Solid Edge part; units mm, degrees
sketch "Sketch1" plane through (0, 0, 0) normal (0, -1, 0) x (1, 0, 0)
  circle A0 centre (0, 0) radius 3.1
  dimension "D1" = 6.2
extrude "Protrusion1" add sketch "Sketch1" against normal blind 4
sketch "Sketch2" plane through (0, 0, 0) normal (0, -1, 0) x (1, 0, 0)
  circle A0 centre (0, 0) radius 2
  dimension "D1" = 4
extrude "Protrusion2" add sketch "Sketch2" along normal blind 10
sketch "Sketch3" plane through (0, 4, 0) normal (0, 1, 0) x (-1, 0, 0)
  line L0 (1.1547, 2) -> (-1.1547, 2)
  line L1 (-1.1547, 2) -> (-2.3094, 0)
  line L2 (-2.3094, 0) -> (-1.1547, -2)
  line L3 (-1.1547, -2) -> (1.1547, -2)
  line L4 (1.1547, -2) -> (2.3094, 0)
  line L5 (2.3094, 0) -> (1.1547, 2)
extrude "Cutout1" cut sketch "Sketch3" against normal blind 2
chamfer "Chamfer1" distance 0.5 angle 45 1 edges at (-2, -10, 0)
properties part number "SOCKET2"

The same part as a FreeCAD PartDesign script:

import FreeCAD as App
import Part
import Sketcher

V = App.Vector
Q = App.Units.Quantity


def edges_at(feature, points):
    """Names of the edges that pass closest to the given points."""
    edges = feature.Shape.Edges
    near = lambda p: min(range(len(edges)), key=lambda i: edges[i].distToShape(Part.Vertex(*p))[0])
    return sorted({f"Edge{near(p) + 1}" for p in points})

doc = App.newDocument("Part")
params = doc.addObject("Spreadsheet::Sheet", "Params")
for row, (alias, value) in enumerate([
    ("sketch1_diameter", "6.2 mm"),
    ("pad1_length", "4 mm"),
    ("sketch2_diameter", "4 mm"),
    ("pad2_length", "10 mm"),
    ("pocket1_length", "2 mm"),
    ("chamfer_size", "0.5 mm"),
], start=1):
    params.set(f"A{row}", alias)
    params.set(f"B{row}", "=" + value)
    params.setAlias(f"B{row}", alias)

body = doc.addObject("PartDesign::Body", "Body")

# Sketch on XZ plane
sketch1 = body.newObject("Sketcher::SketchObject", "Sketch")
sketch1.AttachmentSupport = (doc.getObject("XZ_Plane"), [""])
sketch1.MapMode = "FlatFace"
sketch1.addGeometry(Part.Circle(V(0, 0, 0), V(0, 0, 1), 3.1), False)
sketch1.addConstraint(Sketcher.Constraint("Coincident", 0, 3, -1, 1))
sketch1.addConstraint(Sketcher.Constraint("Diameter", 0, 6.2))
sketch1.setExpression("Constraints[1]", "Params.sketch1_diameter")
pad1 = body.newObject("PartDesign::Pad", "Pad")
pad1.Profile = sketch1
pad1.setExpression("Length", "Params.pad1_length")
pad1.Reversed = True

# Sketch on XZ plane
sketch2 = body.newObject("Sketcher::SketchObject", "Sketch001")
sketch2.AttachmentSupport = (doc.getObject("XZ_Plane"), [""])
sketch2.MapMode = "FlatFace"
sketch2.addGeometry(Part.Circle(V(0, 0, 0), V(0, 0, 1), 2), False)
sketch2.addConstraint(Sketcher.Constraint("Coincident", 0, 3, -1, 1))
sketch2.addConstraint(Sketcher.Constraint("Diameter", 0, 4.0))
sketch2.setExpression("Constraints[1]", "Params.sketch2_diameter")
pad2 = body.newObject("PartDesign::Pad", "Pad001")
pad2.Profile = sketch2
pad2.setExpression("Length", "Params.pad2_length")

# Sketch on XZ plane
sketch3 = body.newObject("Sketcher::SketchObject", "Sketch002")
sketch3.AttachmentSupport = (doc.getObject("XZ_Plane"), [""])
sketch3.MapMode = "FlatFace"
sketch3.AttachmentOffset = App.Placement(V(0, 0, -4), App.Rotation())
sketch3.addGeometry(Part.LineSegment(V(-2.3094, 0, 0), V(-1.1547, 2, 0)), False)
sketch3.addGeometry(Part.LineSegment(V(-1.1547, 2, 0), V(1.1547, 2, 0)), False)
sketch3.addGeometry(Part.LineSegment(V(1.1547, 2, 0), V(2.3094, 0, 0)), False)
sketch3.addGeometry(Part.LineSegment(V(2.3094, 0, 0), V(1.1547, -2, 0)), False)
sketch3.addGeometry(Part.LineSegment(V(1.1547, -2, 0), V(-1.1547, -2, 0)), False)
sketch3.addGeometry(Part.LineSegment(V(-1.1547, -2, 0), V(-2.3094, 0, 0)), False)
sketch3.addConstraint(Sketcher.Constraint("Coincident", 0, 2, 1, 1))
sketch3.addConstraint(Sketcher.Constraint("Coincident", 1, 2, 2, 1))
sketch3.addConstraint(Sketcher.Constraint("Coincident", 2, 2, 3, 1))
sketch3.addConstraint(Sketcher.Constraint("Coincident", 3, 2, 4, 1))
sketch3.addConstraint(Sketcher.Constraint("Coincident", 4, 2, 5, 1))
sketch3.addConstraint(Sketcher.Constraint("Coincident", 5, 2, 0, 1))
sketch3.addConstraint(Sketcher.Constraint("Horizontal", 1))
sketch3.addConstraint(Sketcher.Constraint("Horizontal", 4))
sketch3.addConstraint(Sketcher.Constraint("Symmetric", 0, 2, 3, 2, -1, 1))
sketch3.addConstraint(Sketcher.Constraint("Symmetric", 2, 2, 5, 2, -1, 1))
sketch3.addConstraint(Sketcher.Constraint("PointOnObject", 2, 2, -1))
sketch3.addConstraint(Sketcher.Constraint("Parallel", 2, 5))
sketch3.addConstraint(Sketcher.Constraint("Vertical", 1, 2, 3, 2))
sketch3.addConstraint(Sketcher.Constraint("Angle", 0, Q("60 deg")))
sketch3.addConstraint(Sketcher.Constraint("DistanceY", -1, 1, 0, 2, 2.0))
sketch3.addConstraint(Sketcher.Constraint("DistanceX", 1, 1, 1, 2, 2.3094))
pocket1 = body.newObject("PartDesign::Pocket", "Pocket")
pocket1.Profile = sketch3
pocket1.setExpression("Length", "Params.pocket1_length")
pocket1.Reversed = True
doc.recompute()

chamfer = body.newObject("PartDesign::Chamfer", "Chamfer")
chamfer.Base = (pocket1, edges_at(pocket1, [(-2, -10, 0)]))
chamfer.setExpression("Size", "Params.chamfer_size")

doc.recompute()
